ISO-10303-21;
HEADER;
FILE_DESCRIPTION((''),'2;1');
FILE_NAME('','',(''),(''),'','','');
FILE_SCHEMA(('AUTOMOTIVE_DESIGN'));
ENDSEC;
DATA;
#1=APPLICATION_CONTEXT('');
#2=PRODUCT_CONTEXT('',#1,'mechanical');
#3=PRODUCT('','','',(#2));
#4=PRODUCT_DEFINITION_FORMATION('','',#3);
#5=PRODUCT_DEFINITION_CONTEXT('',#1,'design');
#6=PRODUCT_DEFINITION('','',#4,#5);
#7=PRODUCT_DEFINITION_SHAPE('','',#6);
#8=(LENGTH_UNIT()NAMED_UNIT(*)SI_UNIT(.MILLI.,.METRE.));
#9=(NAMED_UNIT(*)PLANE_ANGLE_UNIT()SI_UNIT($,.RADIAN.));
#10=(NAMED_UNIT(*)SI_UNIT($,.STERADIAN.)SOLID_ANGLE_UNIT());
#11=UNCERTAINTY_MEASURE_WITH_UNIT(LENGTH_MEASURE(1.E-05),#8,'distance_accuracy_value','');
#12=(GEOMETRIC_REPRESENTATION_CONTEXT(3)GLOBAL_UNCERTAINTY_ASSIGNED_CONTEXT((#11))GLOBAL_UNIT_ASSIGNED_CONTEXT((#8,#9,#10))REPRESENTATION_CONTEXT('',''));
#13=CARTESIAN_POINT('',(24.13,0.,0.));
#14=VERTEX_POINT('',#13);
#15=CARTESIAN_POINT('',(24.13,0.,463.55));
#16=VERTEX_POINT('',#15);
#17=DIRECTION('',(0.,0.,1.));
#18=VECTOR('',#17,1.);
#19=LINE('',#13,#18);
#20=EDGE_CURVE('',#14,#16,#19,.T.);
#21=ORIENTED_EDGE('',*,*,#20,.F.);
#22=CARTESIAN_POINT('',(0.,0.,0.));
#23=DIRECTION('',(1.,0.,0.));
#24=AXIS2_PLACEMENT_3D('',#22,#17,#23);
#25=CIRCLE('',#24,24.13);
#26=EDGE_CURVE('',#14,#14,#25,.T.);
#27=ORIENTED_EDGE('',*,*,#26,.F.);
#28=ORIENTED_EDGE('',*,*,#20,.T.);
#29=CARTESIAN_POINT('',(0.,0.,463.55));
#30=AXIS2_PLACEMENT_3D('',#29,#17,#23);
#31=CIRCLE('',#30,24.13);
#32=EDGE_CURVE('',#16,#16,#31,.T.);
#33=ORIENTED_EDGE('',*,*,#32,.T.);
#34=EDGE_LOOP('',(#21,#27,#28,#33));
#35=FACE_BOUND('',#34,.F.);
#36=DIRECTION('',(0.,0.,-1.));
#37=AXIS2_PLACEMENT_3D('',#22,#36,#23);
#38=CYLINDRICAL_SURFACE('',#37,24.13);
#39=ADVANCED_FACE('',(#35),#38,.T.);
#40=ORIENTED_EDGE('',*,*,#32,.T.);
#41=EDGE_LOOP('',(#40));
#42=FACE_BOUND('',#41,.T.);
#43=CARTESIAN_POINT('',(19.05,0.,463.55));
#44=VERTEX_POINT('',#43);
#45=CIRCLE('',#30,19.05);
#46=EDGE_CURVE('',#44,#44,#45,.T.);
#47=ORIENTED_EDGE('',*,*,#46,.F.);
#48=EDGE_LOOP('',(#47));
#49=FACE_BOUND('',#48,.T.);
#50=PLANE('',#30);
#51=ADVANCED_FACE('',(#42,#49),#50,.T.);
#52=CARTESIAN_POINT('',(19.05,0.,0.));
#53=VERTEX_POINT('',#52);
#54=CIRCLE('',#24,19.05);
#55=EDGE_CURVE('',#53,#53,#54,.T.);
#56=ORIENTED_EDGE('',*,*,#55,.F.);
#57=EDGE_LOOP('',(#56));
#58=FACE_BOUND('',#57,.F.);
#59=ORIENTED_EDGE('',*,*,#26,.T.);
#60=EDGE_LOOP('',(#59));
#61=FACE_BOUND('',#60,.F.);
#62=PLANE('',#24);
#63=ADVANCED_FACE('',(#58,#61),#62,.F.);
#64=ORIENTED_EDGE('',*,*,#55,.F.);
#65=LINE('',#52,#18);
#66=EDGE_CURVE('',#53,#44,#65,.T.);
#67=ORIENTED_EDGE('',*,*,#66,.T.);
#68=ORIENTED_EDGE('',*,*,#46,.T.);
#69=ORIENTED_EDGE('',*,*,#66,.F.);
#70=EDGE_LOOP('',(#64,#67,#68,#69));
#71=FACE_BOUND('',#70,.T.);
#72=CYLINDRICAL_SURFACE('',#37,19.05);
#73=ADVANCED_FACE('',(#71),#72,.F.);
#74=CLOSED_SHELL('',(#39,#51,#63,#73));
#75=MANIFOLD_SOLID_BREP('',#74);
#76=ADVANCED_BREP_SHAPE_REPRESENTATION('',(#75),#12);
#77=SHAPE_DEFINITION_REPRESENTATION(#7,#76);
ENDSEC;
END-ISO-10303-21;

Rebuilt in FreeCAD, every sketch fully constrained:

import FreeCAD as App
import Part
import Sketcher
Q = App.Units.Quantity

doc = App.newDocument("Part")
body = doc.addObject("PartDesign::Body", "Body")

sketch1 = body.newObject("Sketcher::SketchObject", "Sketch")
sketch1.AttachmentSupport = (doc.getObject("XY_Plane"), [""])
sketch1.MapMode = "FlatFace"
sketch1.addGeometry([
    Part.Circle(App.Vector(0, 0, 0), App.Vector(0, 0, 1), 24),
    Part.Circle(App.Vector(0, 0, 0), App.Vector(0, 0, 1), 19),
], False)
sketch1.addConstraint([
    Sketcher.Constraint("Coincident", 0, 3, -1, 1),
    Sketcher.Constraint("Coincident", 1, 3, -1, 1),
    Sketcher.Constraint("Diameter", 0, Q("1.9 in")),
    Sketcher.Constraint("Diameter", 1, Q("1.5 in")),
])
pad1 = body.newObject("PartDesign::Pad", "Pad")
pad1.Profile = sketch1
pad1.Length = Q("18.25 in")

doc.recompute()
